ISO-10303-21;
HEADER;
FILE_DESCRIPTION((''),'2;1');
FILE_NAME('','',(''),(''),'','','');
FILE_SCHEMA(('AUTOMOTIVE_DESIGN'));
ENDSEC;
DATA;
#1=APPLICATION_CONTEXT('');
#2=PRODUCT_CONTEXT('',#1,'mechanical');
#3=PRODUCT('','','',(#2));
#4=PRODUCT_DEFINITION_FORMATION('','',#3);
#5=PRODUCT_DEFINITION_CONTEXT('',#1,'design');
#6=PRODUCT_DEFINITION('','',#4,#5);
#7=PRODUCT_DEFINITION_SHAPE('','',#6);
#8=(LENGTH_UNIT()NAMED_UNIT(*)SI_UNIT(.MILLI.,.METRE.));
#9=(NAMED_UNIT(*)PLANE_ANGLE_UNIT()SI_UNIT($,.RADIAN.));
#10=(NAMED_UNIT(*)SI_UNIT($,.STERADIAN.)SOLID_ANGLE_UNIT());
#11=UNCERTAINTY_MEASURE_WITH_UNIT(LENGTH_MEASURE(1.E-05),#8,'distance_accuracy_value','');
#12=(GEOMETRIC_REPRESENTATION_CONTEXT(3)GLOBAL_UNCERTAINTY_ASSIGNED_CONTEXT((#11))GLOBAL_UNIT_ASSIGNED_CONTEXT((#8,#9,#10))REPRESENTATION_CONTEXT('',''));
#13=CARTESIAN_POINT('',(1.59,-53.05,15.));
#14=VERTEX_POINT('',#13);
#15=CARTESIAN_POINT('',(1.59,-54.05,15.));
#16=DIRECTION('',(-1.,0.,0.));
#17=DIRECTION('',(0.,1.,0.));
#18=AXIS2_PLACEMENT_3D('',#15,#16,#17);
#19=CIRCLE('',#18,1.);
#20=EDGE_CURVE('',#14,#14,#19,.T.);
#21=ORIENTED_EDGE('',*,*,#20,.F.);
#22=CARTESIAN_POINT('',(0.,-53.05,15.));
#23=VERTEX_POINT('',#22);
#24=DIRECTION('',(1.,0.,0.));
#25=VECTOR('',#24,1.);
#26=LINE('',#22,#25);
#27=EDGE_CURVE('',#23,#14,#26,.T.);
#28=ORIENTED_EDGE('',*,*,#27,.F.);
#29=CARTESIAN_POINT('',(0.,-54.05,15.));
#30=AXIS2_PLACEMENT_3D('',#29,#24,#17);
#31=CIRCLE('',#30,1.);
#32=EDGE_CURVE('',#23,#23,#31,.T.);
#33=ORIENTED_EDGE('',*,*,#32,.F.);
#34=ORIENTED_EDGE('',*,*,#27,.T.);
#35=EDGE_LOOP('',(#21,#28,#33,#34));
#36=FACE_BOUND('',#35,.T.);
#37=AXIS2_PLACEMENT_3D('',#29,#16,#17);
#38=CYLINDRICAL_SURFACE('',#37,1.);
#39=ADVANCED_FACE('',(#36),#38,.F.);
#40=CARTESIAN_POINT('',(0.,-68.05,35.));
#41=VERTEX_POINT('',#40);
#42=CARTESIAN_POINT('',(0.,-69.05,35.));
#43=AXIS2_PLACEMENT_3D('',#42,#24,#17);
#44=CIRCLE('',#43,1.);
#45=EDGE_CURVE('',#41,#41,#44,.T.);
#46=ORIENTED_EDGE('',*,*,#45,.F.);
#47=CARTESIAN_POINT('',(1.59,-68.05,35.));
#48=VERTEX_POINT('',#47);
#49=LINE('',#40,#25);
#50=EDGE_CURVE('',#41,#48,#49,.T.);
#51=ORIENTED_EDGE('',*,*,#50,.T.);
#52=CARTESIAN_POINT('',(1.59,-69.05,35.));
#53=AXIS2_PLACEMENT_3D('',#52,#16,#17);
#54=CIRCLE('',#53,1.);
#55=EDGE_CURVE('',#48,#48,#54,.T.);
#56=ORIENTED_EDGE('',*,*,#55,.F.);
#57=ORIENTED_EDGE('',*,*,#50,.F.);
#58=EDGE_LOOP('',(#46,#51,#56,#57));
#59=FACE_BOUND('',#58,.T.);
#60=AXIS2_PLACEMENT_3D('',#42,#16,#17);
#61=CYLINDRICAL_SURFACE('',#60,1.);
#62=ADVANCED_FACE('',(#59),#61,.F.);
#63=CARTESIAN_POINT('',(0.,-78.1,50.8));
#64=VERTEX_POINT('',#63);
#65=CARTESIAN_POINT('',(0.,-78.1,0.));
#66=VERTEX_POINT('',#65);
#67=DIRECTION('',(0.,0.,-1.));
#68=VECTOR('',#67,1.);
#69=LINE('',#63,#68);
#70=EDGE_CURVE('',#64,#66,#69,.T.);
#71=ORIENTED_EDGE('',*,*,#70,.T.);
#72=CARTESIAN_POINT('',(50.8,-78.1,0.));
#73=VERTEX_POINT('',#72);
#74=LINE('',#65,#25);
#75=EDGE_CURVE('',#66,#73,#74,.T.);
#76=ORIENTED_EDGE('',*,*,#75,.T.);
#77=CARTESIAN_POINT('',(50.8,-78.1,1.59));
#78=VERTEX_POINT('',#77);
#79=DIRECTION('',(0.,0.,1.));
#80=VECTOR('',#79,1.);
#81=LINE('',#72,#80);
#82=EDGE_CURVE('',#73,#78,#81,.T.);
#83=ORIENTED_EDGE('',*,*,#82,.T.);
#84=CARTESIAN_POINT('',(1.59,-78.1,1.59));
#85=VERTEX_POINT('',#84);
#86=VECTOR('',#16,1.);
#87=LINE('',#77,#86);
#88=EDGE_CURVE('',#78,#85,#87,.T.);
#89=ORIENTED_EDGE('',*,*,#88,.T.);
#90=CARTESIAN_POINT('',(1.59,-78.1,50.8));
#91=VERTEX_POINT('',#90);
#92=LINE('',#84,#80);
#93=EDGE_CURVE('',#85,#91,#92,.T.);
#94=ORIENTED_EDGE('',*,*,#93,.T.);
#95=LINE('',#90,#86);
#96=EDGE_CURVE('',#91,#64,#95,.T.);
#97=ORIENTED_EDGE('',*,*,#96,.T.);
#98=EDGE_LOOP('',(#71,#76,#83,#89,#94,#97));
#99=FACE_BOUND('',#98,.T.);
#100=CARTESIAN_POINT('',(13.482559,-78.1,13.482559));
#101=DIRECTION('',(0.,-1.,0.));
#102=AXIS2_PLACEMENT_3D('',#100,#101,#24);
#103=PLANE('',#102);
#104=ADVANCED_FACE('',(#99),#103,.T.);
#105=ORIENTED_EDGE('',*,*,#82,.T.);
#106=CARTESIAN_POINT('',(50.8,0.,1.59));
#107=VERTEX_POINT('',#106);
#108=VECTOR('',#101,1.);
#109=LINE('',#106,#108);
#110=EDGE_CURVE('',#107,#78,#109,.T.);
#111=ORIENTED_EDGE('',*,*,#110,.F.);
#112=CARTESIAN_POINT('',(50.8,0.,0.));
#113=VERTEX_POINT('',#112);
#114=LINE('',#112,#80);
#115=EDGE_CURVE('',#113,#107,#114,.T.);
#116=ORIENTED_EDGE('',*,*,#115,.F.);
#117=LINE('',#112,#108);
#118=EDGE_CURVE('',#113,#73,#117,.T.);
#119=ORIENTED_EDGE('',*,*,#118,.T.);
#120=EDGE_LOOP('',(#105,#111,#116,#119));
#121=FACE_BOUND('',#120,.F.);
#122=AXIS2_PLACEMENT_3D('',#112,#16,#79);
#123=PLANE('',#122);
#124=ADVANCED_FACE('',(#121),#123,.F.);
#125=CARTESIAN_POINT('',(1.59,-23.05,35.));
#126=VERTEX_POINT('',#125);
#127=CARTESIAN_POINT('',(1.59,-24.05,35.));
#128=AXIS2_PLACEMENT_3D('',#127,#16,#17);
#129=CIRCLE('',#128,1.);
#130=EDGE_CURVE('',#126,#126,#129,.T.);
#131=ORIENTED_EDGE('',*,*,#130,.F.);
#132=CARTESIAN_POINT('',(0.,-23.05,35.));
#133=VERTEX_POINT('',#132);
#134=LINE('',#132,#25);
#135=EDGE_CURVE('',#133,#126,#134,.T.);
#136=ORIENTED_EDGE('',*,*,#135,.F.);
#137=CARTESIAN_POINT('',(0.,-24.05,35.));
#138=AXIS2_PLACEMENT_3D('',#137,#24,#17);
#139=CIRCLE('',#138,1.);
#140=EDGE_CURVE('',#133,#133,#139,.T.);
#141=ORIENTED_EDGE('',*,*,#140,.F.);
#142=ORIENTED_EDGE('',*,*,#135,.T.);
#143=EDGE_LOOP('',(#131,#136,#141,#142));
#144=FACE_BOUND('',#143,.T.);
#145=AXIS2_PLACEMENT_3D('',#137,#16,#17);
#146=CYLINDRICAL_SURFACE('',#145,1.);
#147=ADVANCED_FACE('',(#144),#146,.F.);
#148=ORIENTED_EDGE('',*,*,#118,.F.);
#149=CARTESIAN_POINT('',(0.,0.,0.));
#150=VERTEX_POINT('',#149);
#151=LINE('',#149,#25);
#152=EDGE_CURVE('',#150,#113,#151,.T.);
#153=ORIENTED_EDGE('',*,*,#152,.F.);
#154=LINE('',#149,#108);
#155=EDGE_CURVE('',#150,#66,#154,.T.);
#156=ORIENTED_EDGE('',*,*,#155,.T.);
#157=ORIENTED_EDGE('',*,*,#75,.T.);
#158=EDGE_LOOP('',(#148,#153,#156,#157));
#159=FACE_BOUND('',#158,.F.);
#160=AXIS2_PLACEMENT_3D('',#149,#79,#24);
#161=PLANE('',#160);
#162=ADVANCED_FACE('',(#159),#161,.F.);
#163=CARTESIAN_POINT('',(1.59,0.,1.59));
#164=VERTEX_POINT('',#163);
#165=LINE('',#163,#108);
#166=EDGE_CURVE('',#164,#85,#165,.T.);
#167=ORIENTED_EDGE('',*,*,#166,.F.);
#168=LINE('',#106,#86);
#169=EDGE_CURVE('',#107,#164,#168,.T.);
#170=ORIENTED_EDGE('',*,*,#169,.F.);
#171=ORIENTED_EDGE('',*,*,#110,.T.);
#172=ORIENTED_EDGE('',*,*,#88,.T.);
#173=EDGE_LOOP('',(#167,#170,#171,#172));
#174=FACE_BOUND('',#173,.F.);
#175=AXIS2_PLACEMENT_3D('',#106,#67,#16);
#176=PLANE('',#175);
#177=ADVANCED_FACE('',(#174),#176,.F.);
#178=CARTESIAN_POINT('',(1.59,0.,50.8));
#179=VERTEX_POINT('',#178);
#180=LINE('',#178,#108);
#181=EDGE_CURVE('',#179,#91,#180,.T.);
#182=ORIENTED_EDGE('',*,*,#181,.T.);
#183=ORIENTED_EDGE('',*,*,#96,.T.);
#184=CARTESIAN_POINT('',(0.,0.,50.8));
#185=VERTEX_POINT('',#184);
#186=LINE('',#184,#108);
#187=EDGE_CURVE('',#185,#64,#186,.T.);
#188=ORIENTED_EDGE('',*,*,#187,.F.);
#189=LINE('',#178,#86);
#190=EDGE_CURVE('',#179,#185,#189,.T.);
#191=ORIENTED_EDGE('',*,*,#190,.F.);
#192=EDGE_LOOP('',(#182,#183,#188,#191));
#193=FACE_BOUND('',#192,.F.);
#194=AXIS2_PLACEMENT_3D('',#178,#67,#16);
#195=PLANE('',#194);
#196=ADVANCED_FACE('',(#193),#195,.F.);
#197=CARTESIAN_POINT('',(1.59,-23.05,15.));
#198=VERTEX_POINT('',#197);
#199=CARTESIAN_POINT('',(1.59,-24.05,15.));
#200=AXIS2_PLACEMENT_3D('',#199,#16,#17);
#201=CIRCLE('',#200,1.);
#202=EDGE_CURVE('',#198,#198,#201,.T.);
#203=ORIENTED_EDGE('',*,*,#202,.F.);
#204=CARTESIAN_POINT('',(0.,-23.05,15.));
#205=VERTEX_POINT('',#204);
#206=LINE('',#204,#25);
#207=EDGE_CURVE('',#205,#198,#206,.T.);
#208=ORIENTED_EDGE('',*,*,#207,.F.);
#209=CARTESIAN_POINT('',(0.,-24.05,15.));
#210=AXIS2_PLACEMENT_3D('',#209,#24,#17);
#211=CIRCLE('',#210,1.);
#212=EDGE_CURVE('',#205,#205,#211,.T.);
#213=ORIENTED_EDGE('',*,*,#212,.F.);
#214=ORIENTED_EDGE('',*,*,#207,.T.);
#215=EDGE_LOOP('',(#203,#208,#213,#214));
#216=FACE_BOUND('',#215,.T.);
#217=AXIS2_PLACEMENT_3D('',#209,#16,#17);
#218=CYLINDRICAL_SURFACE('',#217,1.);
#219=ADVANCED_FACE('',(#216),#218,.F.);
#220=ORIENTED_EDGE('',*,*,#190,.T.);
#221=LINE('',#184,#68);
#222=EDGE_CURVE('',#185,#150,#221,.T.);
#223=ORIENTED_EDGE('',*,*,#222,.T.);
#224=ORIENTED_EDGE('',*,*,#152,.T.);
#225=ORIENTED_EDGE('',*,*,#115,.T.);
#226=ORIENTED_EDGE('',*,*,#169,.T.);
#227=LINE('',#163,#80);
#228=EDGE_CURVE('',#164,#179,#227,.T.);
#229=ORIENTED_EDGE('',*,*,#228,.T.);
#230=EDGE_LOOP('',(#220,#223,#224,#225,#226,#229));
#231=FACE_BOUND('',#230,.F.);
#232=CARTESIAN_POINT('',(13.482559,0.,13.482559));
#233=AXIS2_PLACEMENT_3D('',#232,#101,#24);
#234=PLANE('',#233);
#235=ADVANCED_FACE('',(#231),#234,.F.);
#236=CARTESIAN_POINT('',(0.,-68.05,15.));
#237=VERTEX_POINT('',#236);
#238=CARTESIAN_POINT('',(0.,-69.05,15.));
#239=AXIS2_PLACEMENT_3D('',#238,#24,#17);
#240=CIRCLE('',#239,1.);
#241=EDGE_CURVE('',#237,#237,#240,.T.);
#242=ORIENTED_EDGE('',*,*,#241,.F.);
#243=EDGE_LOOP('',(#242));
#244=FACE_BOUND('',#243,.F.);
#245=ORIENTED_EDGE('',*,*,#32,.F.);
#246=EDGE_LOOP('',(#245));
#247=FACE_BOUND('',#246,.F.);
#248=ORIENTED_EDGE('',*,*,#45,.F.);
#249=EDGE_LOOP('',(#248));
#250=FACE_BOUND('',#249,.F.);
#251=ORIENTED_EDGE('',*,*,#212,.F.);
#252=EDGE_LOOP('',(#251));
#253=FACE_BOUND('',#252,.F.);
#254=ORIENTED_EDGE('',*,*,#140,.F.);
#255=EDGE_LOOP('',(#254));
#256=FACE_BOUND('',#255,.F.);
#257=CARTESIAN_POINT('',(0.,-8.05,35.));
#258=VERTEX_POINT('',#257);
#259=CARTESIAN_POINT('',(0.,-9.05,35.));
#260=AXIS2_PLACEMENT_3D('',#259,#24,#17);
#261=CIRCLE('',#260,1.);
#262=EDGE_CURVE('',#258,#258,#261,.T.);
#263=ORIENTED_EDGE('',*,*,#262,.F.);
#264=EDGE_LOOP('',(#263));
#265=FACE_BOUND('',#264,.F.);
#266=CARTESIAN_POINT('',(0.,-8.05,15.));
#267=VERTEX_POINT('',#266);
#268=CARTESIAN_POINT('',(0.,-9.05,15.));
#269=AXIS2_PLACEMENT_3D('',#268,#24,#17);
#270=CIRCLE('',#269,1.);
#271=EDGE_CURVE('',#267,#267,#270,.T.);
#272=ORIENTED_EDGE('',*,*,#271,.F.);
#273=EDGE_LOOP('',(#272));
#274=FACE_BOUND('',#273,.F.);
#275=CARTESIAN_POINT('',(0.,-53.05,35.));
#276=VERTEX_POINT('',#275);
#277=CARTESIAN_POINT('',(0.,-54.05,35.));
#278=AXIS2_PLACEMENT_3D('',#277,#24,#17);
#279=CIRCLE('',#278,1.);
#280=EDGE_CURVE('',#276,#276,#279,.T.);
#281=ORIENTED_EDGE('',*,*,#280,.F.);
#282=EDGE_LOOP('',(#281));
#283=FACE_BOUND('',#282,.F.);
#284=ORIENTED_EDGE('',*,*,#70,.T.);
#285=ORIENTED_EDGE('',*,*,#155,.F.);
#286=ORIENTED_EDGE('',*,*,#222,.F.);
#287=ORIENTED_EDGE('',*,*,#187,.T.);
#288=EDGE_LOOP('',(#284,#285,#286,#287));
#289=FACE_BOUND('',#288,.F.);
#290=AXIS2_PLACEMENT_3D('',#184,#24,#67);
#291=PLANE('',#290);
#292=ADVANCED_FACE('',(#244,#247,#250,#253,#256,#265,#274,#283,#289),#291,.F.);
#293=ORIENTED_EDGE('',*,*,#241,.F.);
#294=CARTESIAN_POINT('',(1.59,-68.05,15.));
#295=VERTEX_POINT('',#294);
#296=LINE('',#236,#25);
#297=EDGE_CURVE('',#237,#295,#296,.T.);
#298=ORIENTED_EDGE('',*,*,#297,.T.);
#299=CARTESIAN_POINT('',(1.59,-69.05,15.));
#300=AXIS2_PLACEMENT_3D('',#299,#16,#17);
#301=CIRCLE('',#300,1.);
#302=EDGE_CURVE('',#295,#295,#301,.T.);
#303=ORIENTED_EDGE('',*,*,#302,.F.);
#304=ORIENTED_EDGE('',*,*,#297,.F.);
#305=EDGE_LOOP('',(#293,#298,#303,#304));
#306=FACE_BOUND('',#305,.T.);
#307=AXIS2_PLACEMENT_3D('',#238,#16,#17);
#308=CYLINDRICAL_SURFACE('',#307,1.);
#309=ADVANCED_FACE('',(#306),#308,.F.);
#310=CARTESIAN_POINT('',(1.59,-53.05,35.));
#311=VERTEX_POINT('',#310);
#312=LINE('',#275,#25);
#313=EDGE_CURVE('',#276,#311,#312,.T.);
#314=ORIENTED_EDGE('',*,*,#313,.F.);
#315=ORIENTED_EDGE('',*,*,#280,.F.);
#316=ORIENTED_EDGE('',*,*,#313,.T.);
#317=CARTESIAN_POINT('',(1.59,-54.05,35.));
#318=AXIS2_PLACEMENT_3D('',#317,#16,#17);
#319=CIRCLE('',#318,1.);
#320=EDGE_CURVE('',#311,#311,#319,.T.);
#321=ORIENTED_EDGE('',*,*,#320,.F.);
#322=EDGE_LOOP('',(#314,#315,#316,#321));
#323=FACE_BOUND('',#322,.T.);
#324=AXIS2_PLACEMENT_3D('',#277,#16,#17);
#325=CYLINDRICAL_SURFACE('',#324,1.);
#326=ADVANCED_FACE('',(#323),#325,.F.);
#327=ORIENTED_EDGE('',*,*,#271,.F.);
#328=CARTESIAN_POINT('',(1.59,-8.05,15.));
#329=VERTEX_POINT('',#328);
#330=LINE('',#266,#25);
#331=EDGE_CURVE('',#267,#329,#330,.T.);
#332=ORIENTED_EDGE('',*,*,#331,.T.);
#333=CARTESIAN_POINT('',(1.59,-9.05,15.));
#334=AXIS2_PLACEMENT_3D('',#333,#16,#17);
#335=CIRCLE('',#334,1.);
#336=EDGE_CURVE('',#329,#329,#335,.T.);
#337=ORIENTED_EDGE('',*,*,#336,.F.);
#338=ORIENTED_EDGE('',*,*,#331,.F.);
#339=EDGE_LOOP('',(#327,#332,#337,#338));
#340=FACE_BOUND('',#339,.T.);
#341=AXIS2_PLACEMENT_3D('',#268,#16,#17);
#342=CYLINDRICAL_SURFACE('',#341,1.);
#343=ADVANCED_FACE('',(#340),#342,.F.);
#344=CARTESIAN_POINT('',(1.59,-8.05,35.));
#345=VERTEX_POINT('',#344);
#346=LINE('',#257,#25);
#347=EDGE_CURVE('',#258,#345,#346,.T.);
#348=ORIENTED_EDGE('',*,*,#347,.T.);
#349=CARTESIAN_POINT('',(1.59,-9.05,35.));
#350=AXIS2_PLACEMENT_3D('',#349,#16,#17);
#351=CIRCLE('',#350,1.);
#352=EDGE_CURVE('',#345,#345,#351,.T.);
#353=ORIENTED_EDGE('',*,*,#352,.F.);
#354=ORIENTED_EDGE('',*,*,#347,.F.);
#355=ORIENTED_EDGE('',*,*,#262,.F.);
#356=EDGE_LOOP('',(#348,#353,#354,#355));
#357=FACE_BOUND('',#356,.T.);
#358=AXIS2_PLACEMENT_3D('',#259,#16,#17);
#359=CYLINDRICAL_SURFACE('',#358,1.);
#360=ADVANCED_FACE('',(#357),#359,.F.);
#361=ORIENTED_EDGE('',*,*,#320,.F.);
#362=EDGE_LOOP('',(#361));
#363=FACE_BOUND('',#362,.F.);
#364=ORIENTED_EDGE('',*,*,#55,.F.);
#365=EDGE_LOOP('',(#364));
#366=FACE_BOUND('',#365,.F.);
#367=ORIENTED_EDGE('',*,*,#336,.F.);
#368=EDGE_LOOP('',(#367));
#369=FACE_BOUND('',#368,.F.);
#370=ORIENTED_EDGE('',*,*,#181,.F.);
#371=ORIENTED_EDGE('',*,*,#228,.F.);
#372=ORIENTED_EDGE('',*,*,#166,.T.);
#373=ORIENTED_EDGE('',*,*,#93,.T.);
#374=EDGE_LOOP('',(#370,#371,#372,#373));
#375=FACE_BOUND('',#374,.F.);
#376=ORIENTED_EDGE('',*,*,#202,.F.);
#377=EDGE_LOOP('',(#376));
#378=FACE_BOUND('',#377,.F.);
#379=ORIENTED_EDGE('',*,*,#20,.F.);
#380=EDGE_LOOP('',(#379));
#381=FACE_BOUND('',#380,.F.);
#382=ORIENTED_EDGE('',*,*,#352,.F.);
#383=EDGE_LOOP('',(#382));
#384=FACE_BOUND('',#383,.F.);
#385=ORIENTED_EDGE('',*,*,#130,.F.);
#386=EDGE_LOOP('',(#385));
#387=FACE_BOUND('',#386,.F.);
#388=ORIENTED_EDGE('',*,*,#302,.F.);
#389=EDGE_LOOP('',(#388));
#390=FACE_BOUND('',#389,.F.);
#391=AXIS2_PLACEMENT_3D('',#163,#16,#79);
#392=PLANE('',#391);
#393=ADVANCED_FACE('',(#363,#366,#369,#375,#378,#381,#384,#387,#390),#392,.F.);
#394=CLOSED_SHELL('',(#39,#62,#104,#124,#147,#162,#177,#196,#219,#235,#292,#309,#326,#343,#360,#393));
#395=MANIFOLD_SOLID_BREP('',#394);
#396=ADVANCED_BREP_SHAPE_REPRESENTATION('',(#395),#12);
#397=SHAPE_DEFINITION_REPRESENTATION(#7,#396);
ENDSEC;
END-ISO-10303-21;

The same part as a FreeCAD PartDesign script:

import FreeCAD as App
import Part
import Sketcher
Q = App.Units.Quantity


def add_polygon(sketch, points):
    """Adds a closed chain of lines whose ends are joined by coincident constraints."""
    first, n = sketch.GeometryCount, len(points)
    for a, b in zip(points, points[1:] + points[:1]):
        sketch.addGeometry(Part.LineSegment(App.Vector(*a, 0), App.Vector(*b, 0)), False)
    for i in range(n):
        sketch.addConstraint(Sketcher.Constraint("Coincident", first + i, 2, first + (i + 1) % n, 1))

doc = App.newDocument("Part")
params = doc.addObject("Spreadsheet::Sheet", "Params")
for row, (alias, value) in enumerate([
    ("sketch1_width", "50.8 mm"),
    ("sketch1_width2", "49.21 mm"),
    ("pad1_length", "78.1 mm"),
    ("sketch2_diameter", "2 mm"),
], start=1):
    params.set(f"A{row}", alias)
    params.set(f"B{row}", "=" + value)
    params.setAlias(f"B{row}", alias)

body = doc.addObject("PartDesign::Body", "Body")

sketch1 = body.newObject("Sketcher::SketchObject", "Sketch")
sketch1.AttachmentSupport = (doc.getObject("XZ_Plane"), [""])
sketch1.MapMode = "FlatFace"
add_polygon(sketch1, [(0, 50.8), (0, 0), (50.8, 0), (50.8, 1.6), (1.6, 1.6), (1.6, 50.8)])
sketch1.addConstraint([
    Sketcher.Constraint("Vertical", 0),
    Sketcher.Constraint("Horizontal", 1),
    Sketcher.Constraint("Vertical", 2),
    Sketcher.Constraint("Horizontal", 3),
    Sketcher.Constraint("Vertical", 4),
    Sketcher.Constraint("Horizontal", 5),
    Sketcher.Constraint("Coincident", 0, 2, -1, 1),
    Sketcher.Constraint("Equal", 1, 0),
    Sketcher.Constraint("Equal", 5, 2),
    Sketcher.Constraint("DistanceX", 1, 1, 1, 2, Q("50.8 mm")),
    Sketcher.Constraint("DistanceX", 3, 2, 3, 1, Q("49.21 mm")),
])
sketch1.setExpression("Constraints[15]", "Params.sketch1_width")
sketch1.setExpression("Constraints[16]", "Params.sketch1_width2")
pad1 = body.newObject("PartDesign::Pad", "Pad")
pad1.Profile = sketch1
pad1.setExpression("Length", "Params.pad1_length")

sketch2 = body.newObject("Sketcher::SketchObject", "Sketch001")
sketch2.AttachmentSupport = (doc.getObject("YZ_Plane"), [""])
sketch2.MapMode = "FlatFace"
sketch2.addGeometry([
    Part.Circle(App.Vector(-9.1, 15, 0), App.Vector(0, 0, 1), 1),
    Part.Circle(App.Vector(-9.1, 35, 0), App.Vector(0, 0, 1), 1),
    Part.Circle(App.Vector(-24.1, 35, 0), App.Vector(0, 0, 1), 1),
    Part.Circle(App.Vector(-24.1, 15, 0), App.Vector(0, 0, 1), 1),
    Part.Circle(App.Vector(-54, 15, 0), App.Vector(0, 0, 1), 1),
    Part.Circle(App.Vector(-54, 35, 0), App.Vector(0, 0, 1), 1),
    Part.Circle(App.Vector(-69, 35, 0), App.Vector(0, 0, 1), 1),
    Part.Circle(App.Vector(-69, 15, 0), App.Vector(0, 0, 1), 1),
], False)
sketch2.addConstraint([
    Sketcher.Constraint("Equal", 0, 1),
    Sketcher.Constraint("Equal", 1, 2),
    Sketcher.Constraint("Equal", 2, 3),
    Sketcher.Constraint("Equal", 3, 4),
    Sketcher.Constraint("Equal", 4, 5),
    Sketcher.Constraint("Equal", 5, 6),
    Sketcher.Constraint("Equal", 6, 7),
    Sketcher.Constraint("Horizontal", 1, 3, 2, 3),
    Sketcher.Constraint("Horizontal", 0, 3, 3, 3),
    Sketcher.Constraint("Horizontal", 3, 3, 4, 3),
    Sketcher.Constraint("Horizontal", 2, 3, 5, 3),
    Sketcher.Constraint("Horizontal", 5, 3, 6, 3),
    Sketcher.Constraint("Horizontal", 4, 3, 7, 3),
    Sketcher.Constraint("Vertical", 0, 3, 1, 3),
    Sketcher.Constraint("Vertical", 2, 3, 3, 3),
    Sketcher.Constraint("Vertical", 4, 3, 5, 3),
    Sketcher.Constraint("Vertical", 6, 3, 7, 3),
    Sketcher.Constraint("Diameter", 0, Q("2 mm")),
    Sketcher.Constraint("DistanceY", -1, 1, 0, 3, Q("15 mm")),
    Sketcher.Constraint("DistanceY", -1, 1, 1, 3, Q("35 mm")),
    Sketcher.Constraint("DistanceX", 2, 3, 1, 3, Q("15 mm")),
    Sketcher.Constraint("DistanceX", 4, 3, 3, 3, Q("30 mm")),
    Sketcher.Constraint("DistanceX", 6, 3, 5, 3, Q("15 mm")),
    Sketcher.Constraint("DistanceX", 0, 3, -1, 1, Q("9.05 mm")),
])
sketch2.setExpression("Constraints[17]", "Params.sketch2_diameter")
pocket1 = body.newObject("PartDesign::Pocket", "Pocket")
pocket1.Profile = sketch2
pocket1.Type = "ThroughAll"
pocket1.Reversed = True

doc.recompute()
